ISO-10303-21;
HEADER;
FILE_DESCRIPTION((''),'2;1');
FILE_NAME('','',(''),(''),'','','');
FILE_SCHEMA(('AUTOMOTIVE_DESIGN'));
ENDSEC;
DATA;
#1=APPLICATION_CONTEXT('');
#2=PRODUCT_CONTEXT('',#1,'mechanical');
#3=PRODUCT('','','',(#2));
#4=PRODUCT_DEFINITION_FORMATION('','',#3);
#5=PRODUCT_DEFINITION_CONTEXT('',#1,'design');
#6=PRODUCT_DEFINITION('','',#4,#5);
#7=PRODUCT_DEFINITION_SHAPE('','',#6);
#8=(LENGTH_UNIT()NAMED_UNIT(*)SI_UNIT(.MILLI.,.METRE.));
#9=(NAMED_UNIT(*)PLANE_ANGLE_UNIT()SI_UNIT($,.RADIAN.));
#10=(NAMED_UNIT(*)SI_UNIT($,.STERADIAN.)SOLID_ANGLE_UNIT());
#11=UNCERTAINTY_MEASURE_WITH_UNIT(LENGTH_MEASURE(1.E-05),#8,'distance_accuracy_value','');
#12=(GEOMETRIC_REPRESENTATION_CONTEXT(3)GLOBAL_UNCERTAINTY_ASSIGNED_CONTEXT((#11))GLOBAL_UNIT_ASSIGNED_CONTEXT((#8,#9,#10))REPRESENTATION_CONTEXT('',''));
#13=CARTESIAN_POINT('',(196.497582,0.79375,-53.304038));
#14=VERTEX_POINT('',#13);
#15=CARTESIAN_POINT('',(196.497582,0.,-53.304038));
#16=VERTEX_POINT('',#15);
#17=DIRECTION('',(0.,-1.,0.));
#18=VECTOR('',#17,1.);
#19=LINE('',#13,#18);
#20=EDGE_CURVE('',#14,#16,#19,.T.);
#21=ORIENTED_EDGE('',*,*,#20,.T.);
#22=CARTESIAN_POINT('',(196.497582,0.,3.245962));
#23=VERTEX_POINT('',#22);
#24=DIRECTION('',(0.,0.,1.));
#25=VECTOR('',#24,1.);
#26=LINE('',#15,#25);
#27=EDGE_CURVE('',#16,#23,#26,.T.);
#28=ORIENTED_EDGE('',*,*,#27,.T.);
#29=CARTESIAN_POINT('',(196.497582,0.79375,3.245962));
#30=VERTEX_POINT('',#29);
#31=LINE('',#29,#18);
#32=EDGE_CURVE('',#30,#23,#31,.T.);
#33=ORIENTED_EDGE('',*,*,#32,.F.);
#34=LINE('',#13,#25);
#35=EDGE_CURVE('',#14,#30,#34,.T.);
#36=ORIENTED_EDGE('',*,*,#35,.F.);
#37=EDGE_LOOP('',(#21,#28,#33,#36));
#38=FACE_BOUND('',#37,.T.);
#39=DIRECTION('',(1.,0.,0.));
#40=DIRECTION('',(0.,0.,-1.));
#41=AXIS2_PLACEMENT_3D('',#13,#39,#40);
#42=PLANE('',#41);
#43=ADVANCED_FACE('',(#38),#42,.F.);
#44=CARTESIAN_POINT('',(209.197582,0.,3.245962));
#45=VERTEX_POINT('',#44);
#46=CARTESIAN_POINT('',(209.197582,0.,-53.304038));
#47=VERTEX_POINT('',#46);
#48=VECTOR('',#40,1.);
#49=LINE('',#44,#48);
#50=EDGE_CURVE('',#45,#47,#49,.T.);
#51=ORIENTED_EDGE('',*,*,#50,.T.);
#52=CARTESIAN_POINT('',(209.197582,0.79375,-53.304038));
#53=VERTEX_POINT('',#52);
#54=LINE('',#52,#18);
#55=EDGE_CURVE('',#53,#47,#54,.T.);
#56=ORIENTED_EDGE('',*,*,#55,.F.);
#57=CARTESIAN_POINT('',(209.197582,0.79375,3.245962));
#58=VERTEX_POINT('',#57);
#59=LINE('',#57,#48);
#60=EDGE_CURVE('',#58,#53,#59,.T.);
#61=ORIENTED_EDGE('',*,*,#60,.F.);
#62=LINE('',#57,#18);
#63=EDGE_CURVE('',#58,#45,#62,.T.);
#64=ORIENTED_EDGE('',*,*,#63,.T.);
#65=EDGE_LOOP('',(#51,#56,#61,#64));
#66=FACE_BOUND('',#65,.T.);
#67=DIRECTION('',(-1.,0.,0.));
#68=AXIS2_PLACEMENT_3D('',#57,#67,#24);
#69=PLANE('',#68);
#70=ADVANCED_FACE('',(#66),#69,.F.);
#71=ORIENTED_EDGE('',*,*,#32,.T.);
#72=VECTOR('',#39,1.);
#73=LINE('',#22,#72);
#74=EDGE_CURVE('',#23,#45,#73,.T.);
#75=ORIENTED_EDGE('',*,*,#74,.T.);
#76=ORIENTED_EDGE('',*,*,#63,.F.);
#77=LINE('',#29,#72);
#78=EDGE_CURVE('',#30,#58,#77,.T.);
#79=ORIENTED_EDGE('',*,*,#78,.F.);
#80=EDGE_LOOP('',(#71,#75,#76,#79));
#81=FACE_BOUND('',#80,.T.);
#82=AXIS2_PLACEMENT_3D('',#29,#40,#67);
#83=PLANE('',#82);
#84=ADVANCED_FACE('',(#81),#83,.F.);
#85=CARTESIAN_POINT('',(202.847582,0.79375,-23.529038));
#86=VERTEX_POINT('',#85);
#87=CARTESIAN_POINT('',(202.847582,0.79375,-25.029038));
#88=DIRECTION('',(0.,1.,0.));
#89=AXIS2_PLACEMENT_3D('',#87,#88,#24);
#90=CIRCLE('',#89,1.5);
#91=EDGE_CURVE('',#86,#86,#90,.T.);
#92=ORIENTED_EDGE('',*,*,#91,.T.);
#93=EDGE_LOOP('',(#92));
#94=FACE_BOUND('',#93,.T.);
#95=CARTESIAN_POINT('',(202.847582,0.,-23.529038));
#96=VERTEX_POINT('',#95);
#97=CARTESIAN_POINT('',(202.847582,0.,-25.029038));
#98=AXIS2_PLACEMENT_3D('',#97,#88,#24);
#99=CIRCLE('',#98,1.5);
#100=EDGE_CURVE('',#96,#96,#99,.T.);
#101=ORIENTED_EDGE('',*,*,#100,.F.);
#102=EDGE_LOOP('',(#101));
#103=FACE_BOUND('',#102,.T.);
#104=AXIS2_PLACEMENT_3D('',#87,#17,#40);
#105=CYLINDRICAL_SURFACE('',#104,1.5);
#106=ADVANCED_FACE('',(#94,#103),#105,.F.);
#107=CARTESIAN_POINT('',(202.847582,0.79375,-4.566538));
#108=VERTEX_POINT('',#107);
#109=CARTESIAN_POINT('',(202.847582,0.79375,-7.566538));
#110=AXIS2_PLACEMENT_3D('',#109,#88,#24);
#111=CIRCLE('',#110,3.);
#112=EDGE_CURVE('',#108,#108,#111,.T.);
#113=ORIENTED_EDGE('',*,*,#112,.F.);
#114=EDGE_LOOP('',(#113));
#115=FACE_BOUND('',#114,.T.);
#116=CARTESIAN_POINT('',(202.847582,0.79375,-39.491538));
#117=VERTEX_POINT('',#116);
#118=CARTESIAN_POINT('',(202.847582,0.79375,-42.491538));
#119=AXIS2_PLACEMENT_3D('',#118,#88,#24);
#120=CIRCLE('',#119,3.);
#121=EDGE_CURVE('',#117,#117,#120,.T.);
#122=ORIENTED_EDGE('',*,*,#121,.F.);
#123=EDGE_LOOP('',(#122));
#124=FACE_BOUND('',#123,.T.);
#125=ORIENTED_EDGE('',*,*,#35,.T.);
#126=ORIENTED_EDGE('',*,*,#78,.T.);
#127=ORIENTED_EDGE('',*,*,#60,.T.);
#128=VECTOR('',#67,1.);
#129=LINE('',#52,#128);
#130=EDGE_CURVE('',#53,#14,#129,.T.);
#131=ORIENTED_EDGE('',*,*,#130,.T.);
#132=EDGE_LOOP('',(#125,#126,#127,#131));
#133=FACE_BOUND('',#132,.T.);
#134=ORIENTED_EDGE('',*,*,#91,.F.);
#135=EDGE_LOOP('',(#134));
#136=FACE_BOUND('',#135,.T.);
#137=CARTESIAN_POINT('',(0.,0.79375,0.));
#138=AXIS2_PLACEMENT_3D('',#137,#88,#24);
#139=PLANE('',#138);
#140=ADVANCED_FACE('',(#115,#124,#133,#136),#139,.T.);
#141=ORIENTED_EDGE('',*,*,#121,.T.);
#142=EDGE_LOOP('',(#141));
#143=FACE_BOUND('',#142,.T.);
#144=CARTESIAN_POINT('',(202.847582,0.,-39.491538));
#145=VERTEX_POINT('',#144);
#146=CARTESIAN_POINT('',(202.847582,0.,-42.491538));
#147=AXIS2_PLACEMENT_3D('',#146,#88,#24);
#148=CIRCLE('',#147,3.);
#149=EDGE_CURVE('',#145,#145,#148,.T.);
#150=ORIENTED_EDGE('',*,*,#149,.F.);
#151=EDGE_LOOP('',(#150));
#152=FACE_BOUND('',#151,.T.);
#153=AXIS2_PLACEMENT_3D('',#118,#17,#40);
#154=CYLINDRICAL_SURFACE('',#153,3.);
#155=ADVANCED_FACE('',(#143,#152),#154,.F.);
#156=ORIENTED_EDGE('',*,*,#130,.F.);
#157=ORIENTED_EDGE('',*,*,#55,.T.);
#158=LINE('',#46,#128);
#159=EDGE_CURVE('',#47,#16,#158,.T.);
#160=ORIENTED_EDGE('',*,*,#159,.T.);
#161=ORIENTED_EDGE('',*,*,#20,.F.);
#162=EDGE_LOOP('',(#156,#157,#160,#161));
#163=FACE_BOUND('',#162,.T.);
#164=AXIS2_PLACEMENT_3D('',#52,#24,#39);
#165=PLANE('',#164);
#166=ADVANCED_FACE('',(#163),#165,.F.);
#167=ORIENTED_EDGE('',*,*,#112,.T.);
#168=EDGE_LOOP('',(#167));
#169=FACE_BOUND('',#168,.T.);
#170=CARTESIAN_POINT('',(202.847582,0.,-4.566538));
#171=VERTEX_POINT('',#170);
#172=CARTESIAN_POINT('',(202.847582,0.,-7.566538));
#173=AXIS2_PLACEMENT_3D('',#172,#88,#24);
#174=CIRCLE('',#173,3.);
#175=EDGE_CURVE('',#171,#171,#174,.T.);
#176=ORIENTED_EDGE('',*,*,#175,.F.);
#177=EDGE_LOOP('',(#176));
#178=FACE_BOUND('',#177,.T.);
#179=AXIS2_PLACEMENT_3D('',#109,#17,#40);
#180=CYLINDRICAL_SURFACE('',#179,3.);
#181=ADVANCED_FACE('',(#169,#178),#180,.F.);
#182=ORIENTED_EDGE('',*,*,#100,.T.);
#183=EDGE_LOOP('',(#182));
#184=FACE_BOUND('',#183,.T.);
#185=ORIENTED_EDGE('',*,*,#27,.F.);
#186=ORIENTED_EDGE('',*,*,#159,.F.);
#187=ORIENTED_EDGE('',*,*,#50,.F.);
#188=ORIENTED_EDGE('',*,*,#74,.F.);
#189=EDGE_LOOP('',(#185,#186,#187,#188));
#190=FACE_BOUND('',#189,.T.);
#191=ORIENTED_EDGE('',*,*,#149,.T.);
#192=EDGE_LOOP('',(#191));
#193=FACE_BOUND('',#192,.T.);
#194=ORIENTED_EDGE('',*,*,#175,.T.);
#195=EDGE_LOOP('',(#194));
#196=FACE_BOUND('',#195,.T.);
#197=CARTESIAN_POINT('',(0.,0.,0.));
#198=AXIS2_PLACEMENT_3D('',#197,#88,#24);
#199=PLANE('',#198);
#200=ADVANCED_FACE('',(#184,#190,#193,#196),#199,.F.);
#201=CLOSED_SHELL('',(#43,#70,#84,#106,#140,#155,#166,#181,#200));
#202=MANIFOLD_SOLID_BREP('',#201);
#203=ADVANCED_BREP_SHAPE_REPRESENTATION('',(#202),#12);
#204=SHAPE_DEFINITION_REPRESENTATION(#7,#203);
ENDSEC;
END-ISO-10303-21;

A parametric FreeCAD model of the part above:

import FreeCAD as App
import Part
import Sketcher


def add_polygon(sketch, points):
    """Adds a closed chain of lines whose ends are joined by coincident constraints."""
    first, n = sketch.GeometryCount, len(points)
    for a, b in zip(points, points[1:] + points[:1]):
        sketch.addGeometry(Part.LineSegment(App.Vector(*a, 0), App.Vector(*b, 0)), False)
    for i in range(n):
        sketch.addConstraint(Sketcher.Constraint("Coincident", first + i, 2, first + (i + 1) % n, 1))

doc = App.newDocument("Part")
body = doc.addObject("PartDesign::Body", "Body")

sketch1 = body.newObject("Sketcher::SketchObject", "Sketch")
sketch1.AttachmentSupport = (doc.getObject("XZ_Plane"), [""])
sketch1.MapMode = "FlatFace"
add_polygon(sketch1, [(196.497582, -53.304038), (196.497582, 3.245962), (209.197582, 3.245962), (209.197582, -53.304038)])
sketch1.addGeometry(Part.Circle(App.Vector(202.847582, -7.566538, 0), App.Vector(0, 0, 1), 3), False)
sketch1.addGeometry(Part.Circle(App.Vector(202.847582, -25.029038, 0), App.Vector(0, 0, 1), 1.5), False)
sketch1.addGeometry(Part.Circle(App.Vector(202.847582, -42.491538, 0), App.Vector(0, 0, 1), 3), False)
sketch1.addConstraint([
    Sketcher.Constraint("Vertical", 0),
    Sketcher.Constraint("Horizontal", 1),
    Sketcher.Constraint("Vertical", 2),
    Sketcher.Constraint("Horizontal", 3),
    Sketcher.Constraint("Equal", 4, 6),
    Sketcher.Constraint("Vertical", 4, 3, 5, 3),
    Sketcher.Constraint("Vertical", 5, 3, 6, 3),
    Sketcher.Constraint("Diameter", 4, 6.0),
    Sketcher.Constraint("Diameter", 5, 3.0),
    Sketcher.Constraint("DistanceX", 1, 1, 1, 2, 12.7),
    Sketcher.Constraint("DistanceY", 0, 1, 0, 2, 56.55),
    Sketcher.Constraint("DistanceX", 0, 2, 4, 3, 6.35),
    Sketcher.Constraint("DistanceY", 6, 3, 4, 3, 34.925),
    Sketcher.Constraint("DistanceY", 5, 3, 0, 2, 28.275),
    Sketcher.Constraint("DistanceY", 5, 3, 4, 3, 17.4625),
    Sketcher.Constraint("DistanceY", 4, 3, -1, 1, 7.566538),
    Sketcher.Constraint("DistanceX", -1, 1, 4, 3, 202.847582),
])
pad1 = body.newObject("PartDesign::Pad", "Pad")
pad1.Profile = sketch1
pad1.Length = 0.79375
pad1.Reversed = True

doc.recompute()
